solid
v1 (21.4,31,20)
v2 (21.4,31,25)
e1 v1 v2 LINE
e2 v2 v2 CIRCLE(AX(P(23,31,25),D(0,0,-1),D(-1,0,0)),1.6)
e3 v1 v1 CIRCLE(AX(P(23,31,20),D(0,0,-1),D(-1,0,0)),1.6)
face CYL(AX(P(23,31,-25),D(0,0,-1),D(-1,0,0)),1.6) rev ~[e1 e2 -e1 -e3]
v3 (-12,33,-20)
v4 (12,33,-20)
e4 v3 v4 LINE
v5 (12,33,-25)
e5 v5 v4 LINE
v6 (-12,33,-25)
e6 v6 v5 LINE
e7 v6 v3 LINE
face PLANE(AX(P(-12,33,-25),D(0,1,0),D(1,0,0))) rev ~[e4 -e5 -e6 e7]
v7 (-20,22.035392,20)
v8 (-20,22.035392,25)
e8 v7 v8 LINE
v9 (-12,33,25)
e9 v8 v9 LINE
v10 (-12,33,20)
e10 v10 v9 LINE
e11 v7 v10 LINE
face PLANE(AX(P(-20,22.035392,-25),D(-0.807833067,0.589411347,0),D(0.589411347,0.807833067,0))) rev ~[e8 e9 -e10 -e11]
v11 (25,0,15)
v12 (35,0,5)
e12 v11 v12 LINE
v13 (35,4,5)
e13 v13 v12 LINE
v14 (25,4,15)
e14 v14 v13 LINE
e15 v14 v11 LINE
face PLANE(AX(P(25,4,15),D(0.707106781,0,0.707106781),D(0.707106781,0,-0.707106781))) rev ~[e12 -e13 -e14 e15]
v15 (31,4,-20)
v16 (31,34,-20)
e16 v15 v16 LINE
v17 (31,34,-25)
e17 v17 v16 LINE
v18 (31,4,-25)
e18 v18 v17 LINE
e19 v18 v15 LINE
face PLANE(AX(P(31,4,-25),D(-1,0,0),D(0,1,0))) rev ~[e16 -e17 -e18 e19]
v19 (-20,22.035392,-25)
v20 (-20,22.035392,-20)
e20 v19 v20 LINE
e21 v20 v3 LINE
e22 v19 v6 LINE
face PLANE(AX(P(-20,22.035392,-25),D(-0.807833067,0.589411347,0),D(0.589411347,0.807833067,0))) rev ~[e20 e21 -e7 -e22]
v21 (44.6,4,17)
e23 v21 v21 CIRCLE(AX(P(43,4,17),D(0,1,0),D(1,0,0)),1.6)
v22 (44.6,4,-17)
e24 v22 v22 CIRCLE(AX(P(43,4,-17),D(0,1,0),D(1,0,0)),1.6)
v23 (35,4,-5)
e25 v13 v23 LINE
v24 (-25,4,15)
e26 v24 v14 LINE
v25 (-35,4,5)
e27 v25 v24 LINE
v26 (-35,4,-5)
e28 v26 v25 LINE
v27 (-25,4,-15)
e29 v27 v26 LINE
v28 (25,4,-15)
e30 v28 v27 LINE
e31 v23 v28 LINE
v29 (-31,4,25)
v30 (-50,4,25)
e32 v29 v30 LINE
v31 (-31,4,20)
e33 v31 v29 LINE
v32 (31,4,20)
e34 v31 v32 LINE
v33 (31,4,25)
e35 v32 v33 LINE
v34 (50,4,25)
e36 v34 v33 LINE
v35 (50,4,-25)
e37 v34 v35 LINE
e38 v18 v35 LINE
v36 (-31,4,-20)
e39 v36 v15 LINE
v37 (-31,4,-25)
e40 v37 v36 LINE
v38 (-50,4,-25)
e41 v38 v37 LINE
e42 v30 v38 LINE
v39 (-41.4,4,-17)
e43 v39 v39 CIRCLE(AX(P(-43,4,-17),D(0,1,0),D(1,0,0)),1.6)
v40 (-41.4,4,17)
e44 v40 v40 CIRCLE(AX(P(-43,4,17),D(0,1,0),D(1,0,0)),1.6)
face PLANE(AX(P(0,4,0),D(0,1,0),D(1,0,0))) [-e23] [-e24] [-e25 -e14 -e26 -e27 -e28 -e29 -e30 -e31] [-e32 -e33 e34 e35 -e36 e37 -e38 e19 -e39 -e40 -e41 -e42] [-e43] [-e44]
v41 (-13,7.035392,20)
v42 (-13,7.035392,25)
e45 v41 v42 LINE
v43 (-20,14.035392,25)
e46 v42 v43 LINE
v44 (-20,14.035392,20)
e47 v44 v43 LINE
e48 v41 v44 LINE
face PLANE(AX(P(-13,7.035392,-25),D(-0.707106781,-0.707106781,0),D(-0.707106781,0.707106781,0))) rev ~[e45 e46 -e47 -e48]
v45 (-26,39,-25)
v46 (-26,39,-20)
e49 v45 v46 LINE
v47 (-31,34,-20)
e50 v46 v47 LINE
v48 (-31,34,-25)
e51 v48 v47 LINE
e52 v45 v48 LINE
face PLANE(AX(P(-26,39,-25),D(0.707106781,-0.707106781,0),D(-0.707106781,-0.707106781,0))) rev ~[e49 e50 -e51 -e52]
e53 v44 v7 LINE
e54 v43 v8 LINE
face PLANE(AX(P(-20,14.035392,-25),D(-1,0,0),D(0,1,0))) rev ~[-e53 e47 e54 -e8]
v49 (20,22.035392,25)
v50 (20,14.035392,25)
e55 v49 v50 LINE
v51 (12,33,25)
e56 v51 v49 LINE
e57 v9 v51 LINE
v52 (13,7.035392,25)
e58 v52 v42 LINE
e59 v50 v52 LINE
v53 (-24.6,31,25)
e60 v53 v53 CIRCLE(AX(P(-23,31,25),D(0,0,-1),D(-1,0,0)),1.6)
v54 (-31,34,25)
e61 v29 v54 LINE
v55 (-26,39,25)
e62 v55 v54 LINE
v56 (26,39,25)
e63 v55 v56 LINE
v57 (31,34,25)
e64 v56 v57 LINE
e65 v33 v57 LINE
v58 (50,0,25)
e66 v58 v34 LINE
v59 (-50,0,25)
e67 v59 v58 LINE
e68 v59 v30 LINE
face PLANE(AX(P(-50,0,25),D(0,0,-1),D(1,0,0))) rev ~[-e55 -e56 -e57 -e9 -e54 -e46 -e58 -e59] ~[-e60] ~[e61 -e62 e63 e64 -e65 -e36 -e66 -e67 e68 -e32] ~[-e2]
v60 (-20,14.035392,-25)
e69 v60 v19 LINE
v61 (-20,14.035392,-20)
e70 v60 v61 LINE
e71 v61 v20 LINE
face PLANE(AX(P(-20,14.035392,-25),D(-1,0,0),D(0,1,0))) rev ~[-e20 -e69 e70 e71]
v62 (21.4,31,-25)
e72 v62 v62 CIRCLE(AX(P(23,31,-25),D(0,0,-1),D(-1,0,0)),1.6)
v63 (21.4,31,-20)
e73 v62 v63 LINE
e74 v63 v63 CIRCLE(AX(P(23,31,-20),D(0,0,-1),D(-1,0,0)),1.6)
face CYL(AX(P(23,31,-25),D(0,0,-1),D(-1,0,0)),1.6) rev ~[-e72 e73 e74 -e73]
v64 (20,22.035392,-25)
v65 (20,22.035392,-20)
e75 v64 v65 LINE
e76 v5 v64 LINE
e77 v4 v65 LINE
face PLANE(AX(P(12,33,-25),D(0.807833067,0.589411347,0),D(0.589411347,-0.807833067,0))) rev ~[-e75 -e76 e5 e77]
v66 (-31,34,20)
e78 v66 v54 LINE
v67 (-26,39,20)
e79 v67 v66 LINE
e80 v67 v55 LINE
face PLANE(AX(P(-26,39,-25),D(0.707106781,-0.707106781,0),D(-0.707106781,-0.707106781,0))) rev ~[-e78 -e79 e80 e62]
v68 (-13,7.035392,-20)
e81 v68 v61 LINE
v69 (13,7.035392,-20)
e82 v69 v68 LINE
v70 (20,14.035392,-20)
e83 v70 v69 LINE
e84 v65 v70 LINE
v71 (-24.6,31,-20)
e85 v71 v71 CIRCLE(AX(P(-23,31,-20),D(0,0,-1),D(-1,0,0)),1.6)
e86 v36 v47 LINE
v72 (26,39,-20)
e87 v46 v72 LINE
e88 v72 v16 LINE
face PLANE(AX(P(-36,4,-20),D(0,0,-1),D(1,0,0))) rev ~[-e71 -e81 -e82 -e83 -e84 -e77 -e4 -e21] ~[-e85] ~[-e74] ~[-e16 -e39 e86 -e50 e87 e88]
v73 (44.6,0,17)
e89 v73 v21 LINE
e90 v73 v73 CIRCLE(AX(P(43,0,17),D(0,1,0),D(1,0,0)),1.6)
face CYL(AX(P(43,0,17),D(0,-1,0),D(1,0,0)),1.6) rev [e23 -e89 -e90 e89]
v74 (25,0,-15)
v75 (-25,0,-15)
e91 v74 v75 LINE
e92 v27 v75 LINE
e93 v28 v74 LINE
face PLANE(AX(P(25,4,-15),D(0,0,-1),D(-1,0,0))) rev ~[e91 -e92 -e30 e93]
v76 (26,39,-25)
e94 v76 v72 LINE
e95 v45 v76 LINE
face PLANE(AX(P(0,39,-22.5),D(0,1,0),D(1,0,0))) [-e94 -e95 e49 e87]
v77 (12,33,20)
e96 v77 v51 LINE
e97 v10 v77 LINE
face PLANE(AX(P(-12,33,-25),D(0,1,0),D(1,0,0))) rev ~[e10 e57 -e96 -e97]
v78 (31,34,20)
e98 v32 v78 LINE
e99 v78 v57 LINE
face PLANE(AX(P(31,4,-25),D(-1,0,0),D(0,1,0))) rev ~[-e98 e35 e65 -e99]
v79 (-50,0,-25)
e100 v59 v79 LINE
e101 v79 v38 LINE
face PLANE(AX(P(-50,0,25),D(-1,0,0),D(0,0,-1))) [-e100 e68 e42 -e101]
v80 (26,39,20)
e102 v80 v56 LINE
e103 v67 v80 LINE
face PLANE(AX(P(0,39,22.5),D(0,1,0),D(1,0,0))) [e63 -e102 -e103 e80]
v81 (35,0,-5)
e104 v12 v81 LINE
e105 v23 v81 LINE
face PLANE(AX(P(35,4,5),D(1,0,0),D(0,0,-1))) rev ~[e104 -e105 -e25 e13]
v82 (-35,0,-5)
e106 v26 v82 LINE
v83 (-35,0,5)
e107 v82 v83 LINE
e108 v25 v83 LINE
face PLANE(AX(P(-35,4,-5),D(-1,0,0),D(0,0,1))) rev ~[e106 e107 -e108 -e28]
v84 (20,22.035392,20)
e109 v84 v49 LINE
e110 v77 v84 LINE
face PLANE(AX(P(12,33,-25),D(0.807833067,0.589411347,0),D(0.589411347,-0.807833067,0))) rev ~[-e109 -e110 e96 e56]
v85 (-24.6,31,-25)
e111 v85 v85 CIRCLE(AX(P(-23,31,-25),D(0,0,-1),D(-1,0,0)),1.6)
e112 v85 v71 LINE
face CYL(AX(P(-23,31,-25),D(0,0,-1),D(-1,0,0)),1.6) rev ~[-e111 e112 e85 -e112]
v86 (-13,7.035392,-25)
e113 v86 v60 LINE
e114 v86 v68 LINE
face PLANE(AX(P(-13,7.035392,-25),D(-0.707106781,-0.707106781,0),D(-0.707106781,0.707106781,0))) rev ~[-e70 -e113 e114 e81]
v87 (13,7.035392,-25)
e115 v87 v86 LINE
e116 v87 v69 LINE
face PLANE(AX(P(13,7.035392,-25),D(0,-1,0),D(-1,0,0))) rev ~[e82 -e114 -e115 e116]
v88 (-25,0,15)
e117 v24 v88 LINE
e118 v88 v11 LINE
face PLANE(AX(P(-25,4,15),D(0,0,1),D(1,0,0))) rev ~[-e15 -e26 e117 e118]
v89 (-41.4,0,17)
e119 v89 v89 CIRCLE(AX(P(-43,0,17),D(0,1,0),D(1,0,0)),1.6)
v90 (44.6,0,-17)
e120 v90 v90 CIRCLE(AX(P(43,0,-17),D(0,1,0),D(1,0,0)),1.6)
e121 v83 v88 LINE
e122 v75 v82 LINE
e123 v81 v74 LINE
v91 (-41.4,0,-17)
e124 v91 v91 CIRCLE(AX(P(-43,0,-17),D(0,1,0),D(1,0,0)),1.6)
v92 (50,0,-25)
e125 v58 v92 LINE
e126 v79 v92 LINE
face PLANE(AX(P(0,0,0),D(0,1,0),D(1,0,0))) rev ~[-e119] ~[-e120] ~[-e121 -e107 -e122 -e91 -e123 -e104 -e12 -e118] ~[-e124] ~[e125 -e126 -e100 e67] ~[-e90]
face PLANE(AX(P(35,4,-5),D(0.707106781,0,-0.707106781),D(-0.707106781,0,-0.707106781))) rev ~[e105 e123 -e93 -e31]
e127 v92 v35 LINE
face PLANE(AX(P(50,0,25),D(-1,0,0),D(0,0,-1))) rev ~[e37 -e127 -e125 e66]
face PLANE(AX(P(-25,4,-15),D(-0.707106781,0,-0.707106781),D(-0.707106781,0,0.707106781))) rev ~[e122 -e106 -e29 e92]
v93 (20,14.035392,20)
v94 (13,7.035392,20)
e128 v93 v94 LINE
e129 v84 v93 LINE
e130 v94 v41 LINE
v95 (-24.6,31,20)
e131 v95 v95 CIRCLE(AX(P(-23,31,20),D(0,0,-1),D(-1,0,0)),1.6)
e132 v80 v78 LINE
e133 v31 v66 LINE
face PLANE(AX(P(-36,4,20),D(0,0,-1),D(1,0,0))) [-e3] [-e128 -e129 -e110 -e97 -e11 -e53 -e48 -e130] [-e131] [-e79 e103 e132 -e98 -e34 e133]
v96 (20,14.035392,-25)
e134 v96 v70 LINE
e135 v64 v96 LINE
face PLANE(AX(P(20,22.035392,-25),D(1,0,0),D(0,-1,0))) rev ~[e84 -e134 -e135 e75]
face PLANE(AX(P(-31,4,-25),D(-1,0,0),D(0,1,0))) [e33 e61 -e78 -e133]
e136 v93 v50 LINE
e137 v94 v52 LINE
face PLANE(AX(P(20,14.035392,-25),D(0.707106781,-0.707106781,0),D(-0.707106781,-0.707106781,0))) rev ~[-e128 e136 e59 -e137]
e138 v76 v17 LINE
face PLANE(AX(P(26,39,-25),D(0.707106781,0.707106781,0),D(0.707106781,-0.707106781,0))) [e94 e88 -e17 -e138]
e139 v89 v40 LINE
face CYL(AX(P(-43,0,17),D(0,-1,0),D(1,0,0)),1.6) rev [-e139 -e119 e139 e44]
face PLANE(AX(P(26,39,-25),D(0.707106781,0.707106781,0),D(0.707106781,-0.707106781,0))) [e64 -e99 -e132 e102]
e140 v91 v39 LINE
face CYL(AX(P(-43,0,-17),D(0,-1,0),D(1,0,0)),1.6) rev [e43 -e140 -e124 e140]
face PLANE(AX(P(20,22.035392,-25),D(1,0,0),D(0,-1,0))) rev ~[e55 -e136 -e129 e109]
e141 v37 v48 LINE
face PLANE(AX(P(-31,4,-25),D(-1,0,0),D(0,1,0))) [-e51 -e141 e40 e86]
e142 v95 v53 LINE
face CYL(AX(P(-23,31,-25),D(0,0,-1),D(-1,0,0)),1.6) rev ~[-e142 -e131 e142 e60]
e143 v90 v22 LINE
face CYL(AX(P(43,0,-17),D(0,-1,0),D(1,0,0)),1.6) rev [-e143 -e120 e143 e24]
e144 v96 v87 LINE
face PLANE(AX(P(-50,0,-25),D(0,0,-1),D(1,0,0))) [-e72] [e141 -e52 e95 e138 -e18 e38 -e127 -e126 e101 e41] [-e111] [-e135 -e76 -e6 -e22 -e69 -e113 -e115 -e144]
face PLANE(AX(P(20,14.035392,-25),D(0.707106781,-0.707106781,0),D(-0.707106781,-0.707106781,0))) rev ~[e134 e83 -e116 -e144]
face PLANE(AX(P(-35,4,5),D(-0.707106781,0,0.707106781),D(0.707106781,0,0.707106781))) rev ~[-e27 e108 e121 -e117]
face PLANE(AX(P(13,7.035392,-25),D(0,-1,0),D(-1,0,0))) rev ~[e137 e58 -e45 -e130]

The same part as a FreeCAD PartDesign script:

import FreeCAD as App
import Part
import Sketcher

V = App.Vector
Q = App.Units.Quantity


def add_polygon(sketch, points):
    """Adds a closed chain of lines whose ends are joined by coincident constraints."""
    first, n = sketch.GeometryCount, len(points)
    for a, b in zip(points, points[1:] + points[:1]):
        sketch.addGeometry(Part.LineSegment(App.Vector(*a, 0), App.Vector(*b, 0)), False)
    for i in range(n):
        sketch.addConstraint(Sketcher.Constraint("Coincident", first + i, 2, first + (i + 1) % n, 1))

doc = App.newDocument("Part")
params = doc.addObject("Spreadsheet::Sheet", "Params")
for row, (alias, value) in enumerate([
    ("sketch1_diameter", "3.2 mm"),
    ("sketch1_width", "100 mm"),
    ("sketch1_height", "50 mm"),
    ("pad1_length", "4 mm"),
    ("sketch2_width", "72 mm"),
    ("sketch2_height", "5 mm"),
    ("pad2_length", "35 mm"),
    ("sketch3_diameter", "3.2 mm"),
    ("sketch3_width", "10 mm"),
    ("sketch4_width", "24 mm"),
    ("sketch4_width2", "26 mm"),
    ("sketch4_width3", "5 mm"),
    ("sketch4_height", "8 mm"),
    ("sketch4_height2", "30 mm"),
    ("sketch5_width", "50 mm"),
    ("sketch5_height", "10 mm"),
], start=1):
    params.set(f"A{row}", alias)
    params.set(f"B{row}", "=" + value)
    params.setAlias(f"B{row}", alias)

body = doc.addObject("PartDesign::Body", "Body")

# Sketch on XZ plane
sketch1 = body.newObject("Sketcher::SketchObject", "Sketch")
sketch1.AttachmentSupport = (doc.getObject("XZ_Plane"), [""])
sketch1.MapMode = "FlatFace"
add_polygon(sketch1, [(-50, -25), (-50, 25), (50, 25), (50, -25)])  # lines 0-3
sketch1.addGeometry(Part.Circle(V(-43, 17, 0), V(0, 0, 1), 1.6), False)  # 4
sketch1.addGeometry(Part.Circle(V(43, 17, 0), V(0, 0, 1), 1.6), False)  # 5
sketch1.addGeometry(Part.Circle(V(-43, -17, 0), V(0, 0, 1), 1.6), False)  # 6
sketch1.addGeometry(Part.Circle(V(43, -17, 0), V(0, 0, 1), 1.6), False)  # 7
sketch1.addConstraint(Sketcher.Constraint("Vertical", 0))
sketch1.addConstraint(Sketcher.Constraint("Horizontal", 1))
sketch1.addConstraint(Sketcher.Constraint("Vertical", 2))
sketch1.addConstraint(Sketcher.Constraint("Horizontal", 3))
sketch1.addConstraint(Sketcher.Constraint("Equal", 4, 5))
sketch1.addConstraint(Sketcher.Constraint("Equal", 5, 6))
sketch1.addConstraint(Sketcher.Constraint("Equal", 6, 7))
sketch1.addConstraint(Sketcher.Constraint("Symmetric", 5, 3, 6, 3, -1, 1))
sketch1.addConstraint(Sketcher.Constraint("Symmetric", 4, 3, 7, 3, -1, 1))
sketch1.addConstraint(Sketcher.Constraint("Symmetric", 0, 2, 2, 2, -1, 1))
sketch1.addConstraint(Sketcher.Constraint("Symmetric", 4, 3, 5, 3, -2))
sketch1.addConstraint(Sketcher.Constraint("Diameter", 4, Q("3.2 mm")))
sketch1.addConstraint(Sketcher.Constraint("DistanceX", 1, 1, 1, 2, Q("100 mm")))
sketch1.addConstraint(Sketcher.Constraint("DistanceY", 0, 1, 0, 2, Q("50 mm")))
sketch1.addConstraint(Sketcher.Constraint("DistanceX", 4, 3, -1, 1, Q("43 mm")))
sketch1.addConstraint(Sketcher.Constraint("DistanceY", -1, 1, 4, 3, Q("17 mm")))
sketch1.setExpression("Constraints[15]", "Params.sketch1_diameter")
sketch1.setExpression("Constraints[16]", "Params.sketch1_width")
sketch1.setExpression("Constraints[17]", "Params.sketch1_height")
pad1 = body.newObject("PartDesign::Pad", "Pad")
pad1.Profile = sketch1
pad1.setExpression("Length", "Params.pad1_length")
pad1.Reversed = True

# Sketch on XZ plane
sketch2 = body.newObject("Sketcher::SketchObject", "Sketch001")
sketch2.AttachmentSupport = (doc.getObject("XZ_Plane"), [""])
sketch2.MapMode = "FlatFace"
sketch2.AttachmentOffset = App.Placement(V(0, 0, -4), App.Rotation())
add_polygon(sketch2, [(-36, -25), (-36, -20), (36, -20), (36, -25)])  # lines 0-3
add_polygon(sketch2, [(-36, 20), (-36, 25), (36, 25), (36, 20)])  # lines 4-7
sketch2.addConstraint(Sketcher.Constraint("Vertical", 0))
sketch2.addConstraint(Sketcher.Constraint("Horizontal", 1))
sketch2.addConstraint(Sketcher.Constraint("Vertical", 2))
sketch2.addConstraint(Sketcher.Constraint("Horizontal", 3))
sketch2.addConstraint(Sketcher.Constraint("Vertical", 4))
sketch2.addConstraint(Sketcher.Constraint("Horizontal", 5))
sketch2.addConstraint(Sketcher.Constraint("Vertical", 6))
sketch2.addConstraint(Sketcher.Constraint("Horizontal", 7))
sketch2.addConstraint(Sketcher.Constraint("Symmetric", 2, 2, 4, 2, -1, 1))
sketch2.addConstraint(Sketcher.Constraint("Symmetric", 0, 2, 6, 2, -1, 1))
sketch2.addConstraint(Sketcher.Constraint("Vertical", 3, 2, 4, 2))
sketch2.addConstraint(Sketcher.Constraint("DistanceX", 1, 1, 1, 2, Q("72 mm")))
sketch2.addConstraint(Sketcher.Constraint("DistanceY", 0, 1, 0, 2, Q("5 mm")))
sketch2.addConstraint(Sketcher.Constraint("DistanceY", 0, 2, -1, 1, Q("20 mm")))
sketch2.setExpression("Constraints[19]", "Params.sketch2_width")
sketch2.setExpression("Constraints[20]", "Params.sketch2_height")
pad2 = body.newObject("PartDesign::Pad", "Pad001")
pad2.Profile = sketch2
pad2.setExpression("Length", "Params.pad2_length")
pad2.Reversed = True

# Sketch on XY plane
sketch3 = body.newObject("Sketcher::SketchObject", "Sketch002")
sketch3.AttachmentSupport = (doc.getObject("XY_Plane"), [""])
sketch3.MapMode = "FlatFace"
sketch3.AttachmentOffset = App.Placement(V(0, 0, -25), App.Rotation())
sketch3.addGeometry(Part.Circle(V(23, 31, 0), V(0, 0, 1), 1.6), False)  # 0
sketch3.addGeometry(Part.Circle(V(-23, 31, 0), V(0, 0, 1), 1.6), False)  # 1
add_polygon(sketch3, [(36, 29), (26, 39), (36, 39)])  # lines 2-4
add_polygon(sketch3, [(-36, 39), (-26, 39), (-36, 29)])  # lines 5-7
sketch3.addConstraint(Sketcher.Constraint("Horizontal", 3))
sketch3.addConstraint(Sketcher.Constraint("Vertical", 4))
sketch3.addConstraint(Sketcher.Constraint("Horizontal", 5))
sketch3.addConstraint(Sketcher.Constraint("Vertical", 7))
sketch3.addConstraint(Sketcher.Constraint("Equal", 0, 1))
sketch3.addConstraint(Sketcher.Constraint("Symmetric", 0, 3, 1, 3, -2))
sketch3.addConstraint(Sketcher.Constraint("Symmetric", 2, 2, 5, 2, -2))
sketch3.addConstraint(Sketcher.Constraint("Symmetric", 4, 2, 6, 2, -2))
sketch3.addConstraint(Sketcher.Constraint("Perpendicular", 2, 6))
sketch3.addConstraint(Sketcher.Constraint("Diameter", 0, Q("3.2 mm")))
sketch3.addConstraint(Sketcher.Constraint("DistanceX", 3, 1, 3, 2, Q("10 mm")))
sketch3.addConstraint(Sketcher.Constraint("DistanceX", -1, 1, 0, 3, Q("23 mm")))
sketch3.addConstraint(Sketcher.Constraint("DistanceY", -1, 1, 0, 3, Q("31 mm")))
sketch3.addConstraint(Sketcher.Constraint("DistanceX", -1, 1, 2, 2, Q("26 mm")))
sketch3.addConstraint(Sketcher.Constraint("DistanceY", -1, 1, 2, 2, Q("39 mm")))
sketch3.setExpression("Constraints[15]", "Params.sketch3_diameter")
sketch3.setExpression("Constraints[16]", "Params.sketch3_width")
pocket1 = body.newObject("PartDesign::Pocket", "Pocket")
pocket1.Profile = sketch3
pocket1.Type = "ThroughAll"
pocket1.Reversed = True

# Sketch on XY plane
sketch4 = body.newObject("Sketcher::SketchObject", "Sketch003")
sketch4.AttachmentSupport = (doc.getObject("XY_Plane"), [""])
sketch4.MapMode = "FlatFace"
sketch4.AttachmentOffset = App.Placement(V(0, 0, -25), App.Rotation())
add_polygon(sketch4, [(-12, 33), (12, 33), (20, 22), (20, 14), (13, 7), (-13, 7), (-20, 14), (-20, 22)])  # lines 0-7
add_polygon(sketch4, [(36, 4), (31, 4), (31, 34), (36, 29)])  # lines 8-11
add_polygon(sketch4, [(-36, 29), (-31, 34), (-31, 4), (-36, 4)])  # lines 12-15
sketch4.addConstraint(Sketcher.Constraint("Horizontal", 0))
sketch4.addConstraint(Sketcher.Constraint("Vertical", 2))
sketch4.addConstraint(Sketcher.Constraint("Horizontal", 4))
sketch4.addConstraint(Sketcher.Constraint("Vertical", 6))
sketch4.addConstraint(Sketcher.Constraint("Horizontal", 8))
sketch4.addConstraint(Sketcher.Constraint("Vertical", 9))
sketch4.addConstraint(Sketcher.Constraint("Vertical", 11))
sketch4.addConstraint(Sketcher.Constraint("Vertical", 13))
sketch4.addConstraint(Sketcher.Constraint("Horizontal", 14))
sketch4.addConstraint(Sketcher.Constraint("Vertical", 15))
sketch4.addConstraint(Sketcher.Constraint("Symmetric", 2, 2, 5, 2, -2))
sketch4.addConstraint(Sketcher.Constraint("Symmetric", 9, 2, 12, 2, -2))
sketch4.addConstraint(Sketcher.Constraint("Symmetric", 11, 2, 14, 2, -2))
sketch4.addConstraint(Sketcher.Constraint("Perpendicular", 3, 5))
sketch4.addConstraint(Sketcher.Constraint("Parallel", 5, 10))
sketch4.addConstraint(Sketcher.Constraint("Perpendicular", 10, 12))
sketch4.addConstraint(Sketcher.Constraint("Horizontal", 1, 2, 6, 2))
sketch4.addConstraint(Sketcher.Constraint("Horizontal", 10, 2, 15, 2))
sketch4.addConstraint(Sketcher.Constraint("Equal", 1, 7))
sketch4.addConstraint(Sketcher.Constraint("DistanceX", 0, 1, 0, 2, Q("24 mm")))
sketch4.addConstraint(Sketcher.Constraint("DistanceX", 4, 2, 4, 1, Q("26 mm")))
sketch4.addConstraint(Sketcher.Constraint("DistanceX", 8, 2, 8, 1, Q("5 mm")))
sketch4.addConstraint(Sketcher.Constraint("DistanceY", 2, 2, 2, 1, Q("8 mm")))
sketch4.addConstraint(Sketcher.Constraint("DistanceY", 9, 1, 9, 2, Q("30 mm")))
sketch4.addConstraint(Sketcher.Constraint("DistanceY", -1, 1, 0, 2, Q("33 mm")))
sketch4.addConstraint(Sketcher.Constraint("DistanceX", -1, 1, 1, 2, Q("20 mm")))
sketch4.addConstraint(Sketcher.Constraint("DistanceX", -1, 1, 8, 2, Q("31 mm")))
sketch4.addConstraint(Sketcher.Constraint("DistanceY", -1, 1, 8, 2, Q("4 mm")))
sketch4.addConstraint(Sketcher.Constraint("DistanceY", -1, 1, 1, 2, Q("22.035392 mm")))
sketch4.setExpression("Constraints[35]", "Params.sketch4_width")
sketch4.setExpression("Constraints[36]", "Params.sketch4_width2")
sketch4.setExpression("Constraints[37]", "Params.sketch4_width3")
sketch4.setExpression("Constraints[38]", "Params.sketch4_height")
sketch4.setExpression("Constraints[39]", "Params.sketch4_height2")
pocket2 = body.newObject("PartDesign::Pocket", "Pocket001")
pocket2.Profile = sketch4
pocket2.Type = "ThroughAll"
pocket2.Reversed = True

# Sketch on XZ plane
sketch5 = body.newObject("Sketcher::SketchObject", "Sketch004")
sketch5.AttachmentSupport = (doc.getObject("XZ_Plane"), [""])
sketch5.MapMode = "FlatFace"
sketch5.AttachmentOffset = App.Placement(V(0, 0, -4), App.Rotation())
add_polygon(sketch5, [(-25, -15), (-35, -5), (-35, 5), (-25, 15), (25, 15), (35, 5), (35, -5), (25, -15)])  # lines 0-7
sketch5.addConstraint(Sketcher.Constraint("Vertical", 1))
sketch5.addConstraint(Sketcher.Constraint("Horizontal", 3))
sketch5.addConstraint(Sketcher.Constraint("Vertical", 5))
sketch5.addConstraint(Sketcher.Constraint("Horizontal", 7))
sketch5.addConstraint(Sketcher.Constraint("Symmetric", 0, 2, 4, 2, -1, 1))
sketch5.addConstraint(Sketcher.Constraint("Symmetric", 2, 2, 6, 2, -1, 1))
sketch5.addConstraint(Sketcher.Constraint("Perpendicular", 0, 2))
sketch5.addConstraint(Sketcher.Constraint("Perpendicular", 2, 4))
sketch5.addConstraint(Sketcher.Constraint("Perpendicular", 4, 6))
sketch5.addConstraint(Sketcher.Constraint("Horizontal", 1, 2, 4, 2))
sketch5.addConstraint(Sketcher.Constraint("Vertical", 3, 2, 6, 2))
sketch5.addConstraint(Sketcher.Constraint("DistanceX", 3, 1, 3, 2, Q("50 mm")))
sketch5.addConstraint(Sketcher.Constraint("DistanceY", 1, 1, 1, 2, Q("10 mm")))
sketch5.addConstraint(Sketcher.Constraint("DistanceX", 0, 2, -1, 1, Q("35 mm")))
sketch5.setExpression("Constraints[19]", "Params.sketch5_width")
sketch5.setExpression("Constraints[20]", "Params.sketch5_height")
pocket3 = body.newObject("PartDesign::Pocket", "Pocket002")
pocket3.Profile = sketch5
pocket3.Type = "ThroughAll"
pocket3.Reversed = True

doc.recompute()
